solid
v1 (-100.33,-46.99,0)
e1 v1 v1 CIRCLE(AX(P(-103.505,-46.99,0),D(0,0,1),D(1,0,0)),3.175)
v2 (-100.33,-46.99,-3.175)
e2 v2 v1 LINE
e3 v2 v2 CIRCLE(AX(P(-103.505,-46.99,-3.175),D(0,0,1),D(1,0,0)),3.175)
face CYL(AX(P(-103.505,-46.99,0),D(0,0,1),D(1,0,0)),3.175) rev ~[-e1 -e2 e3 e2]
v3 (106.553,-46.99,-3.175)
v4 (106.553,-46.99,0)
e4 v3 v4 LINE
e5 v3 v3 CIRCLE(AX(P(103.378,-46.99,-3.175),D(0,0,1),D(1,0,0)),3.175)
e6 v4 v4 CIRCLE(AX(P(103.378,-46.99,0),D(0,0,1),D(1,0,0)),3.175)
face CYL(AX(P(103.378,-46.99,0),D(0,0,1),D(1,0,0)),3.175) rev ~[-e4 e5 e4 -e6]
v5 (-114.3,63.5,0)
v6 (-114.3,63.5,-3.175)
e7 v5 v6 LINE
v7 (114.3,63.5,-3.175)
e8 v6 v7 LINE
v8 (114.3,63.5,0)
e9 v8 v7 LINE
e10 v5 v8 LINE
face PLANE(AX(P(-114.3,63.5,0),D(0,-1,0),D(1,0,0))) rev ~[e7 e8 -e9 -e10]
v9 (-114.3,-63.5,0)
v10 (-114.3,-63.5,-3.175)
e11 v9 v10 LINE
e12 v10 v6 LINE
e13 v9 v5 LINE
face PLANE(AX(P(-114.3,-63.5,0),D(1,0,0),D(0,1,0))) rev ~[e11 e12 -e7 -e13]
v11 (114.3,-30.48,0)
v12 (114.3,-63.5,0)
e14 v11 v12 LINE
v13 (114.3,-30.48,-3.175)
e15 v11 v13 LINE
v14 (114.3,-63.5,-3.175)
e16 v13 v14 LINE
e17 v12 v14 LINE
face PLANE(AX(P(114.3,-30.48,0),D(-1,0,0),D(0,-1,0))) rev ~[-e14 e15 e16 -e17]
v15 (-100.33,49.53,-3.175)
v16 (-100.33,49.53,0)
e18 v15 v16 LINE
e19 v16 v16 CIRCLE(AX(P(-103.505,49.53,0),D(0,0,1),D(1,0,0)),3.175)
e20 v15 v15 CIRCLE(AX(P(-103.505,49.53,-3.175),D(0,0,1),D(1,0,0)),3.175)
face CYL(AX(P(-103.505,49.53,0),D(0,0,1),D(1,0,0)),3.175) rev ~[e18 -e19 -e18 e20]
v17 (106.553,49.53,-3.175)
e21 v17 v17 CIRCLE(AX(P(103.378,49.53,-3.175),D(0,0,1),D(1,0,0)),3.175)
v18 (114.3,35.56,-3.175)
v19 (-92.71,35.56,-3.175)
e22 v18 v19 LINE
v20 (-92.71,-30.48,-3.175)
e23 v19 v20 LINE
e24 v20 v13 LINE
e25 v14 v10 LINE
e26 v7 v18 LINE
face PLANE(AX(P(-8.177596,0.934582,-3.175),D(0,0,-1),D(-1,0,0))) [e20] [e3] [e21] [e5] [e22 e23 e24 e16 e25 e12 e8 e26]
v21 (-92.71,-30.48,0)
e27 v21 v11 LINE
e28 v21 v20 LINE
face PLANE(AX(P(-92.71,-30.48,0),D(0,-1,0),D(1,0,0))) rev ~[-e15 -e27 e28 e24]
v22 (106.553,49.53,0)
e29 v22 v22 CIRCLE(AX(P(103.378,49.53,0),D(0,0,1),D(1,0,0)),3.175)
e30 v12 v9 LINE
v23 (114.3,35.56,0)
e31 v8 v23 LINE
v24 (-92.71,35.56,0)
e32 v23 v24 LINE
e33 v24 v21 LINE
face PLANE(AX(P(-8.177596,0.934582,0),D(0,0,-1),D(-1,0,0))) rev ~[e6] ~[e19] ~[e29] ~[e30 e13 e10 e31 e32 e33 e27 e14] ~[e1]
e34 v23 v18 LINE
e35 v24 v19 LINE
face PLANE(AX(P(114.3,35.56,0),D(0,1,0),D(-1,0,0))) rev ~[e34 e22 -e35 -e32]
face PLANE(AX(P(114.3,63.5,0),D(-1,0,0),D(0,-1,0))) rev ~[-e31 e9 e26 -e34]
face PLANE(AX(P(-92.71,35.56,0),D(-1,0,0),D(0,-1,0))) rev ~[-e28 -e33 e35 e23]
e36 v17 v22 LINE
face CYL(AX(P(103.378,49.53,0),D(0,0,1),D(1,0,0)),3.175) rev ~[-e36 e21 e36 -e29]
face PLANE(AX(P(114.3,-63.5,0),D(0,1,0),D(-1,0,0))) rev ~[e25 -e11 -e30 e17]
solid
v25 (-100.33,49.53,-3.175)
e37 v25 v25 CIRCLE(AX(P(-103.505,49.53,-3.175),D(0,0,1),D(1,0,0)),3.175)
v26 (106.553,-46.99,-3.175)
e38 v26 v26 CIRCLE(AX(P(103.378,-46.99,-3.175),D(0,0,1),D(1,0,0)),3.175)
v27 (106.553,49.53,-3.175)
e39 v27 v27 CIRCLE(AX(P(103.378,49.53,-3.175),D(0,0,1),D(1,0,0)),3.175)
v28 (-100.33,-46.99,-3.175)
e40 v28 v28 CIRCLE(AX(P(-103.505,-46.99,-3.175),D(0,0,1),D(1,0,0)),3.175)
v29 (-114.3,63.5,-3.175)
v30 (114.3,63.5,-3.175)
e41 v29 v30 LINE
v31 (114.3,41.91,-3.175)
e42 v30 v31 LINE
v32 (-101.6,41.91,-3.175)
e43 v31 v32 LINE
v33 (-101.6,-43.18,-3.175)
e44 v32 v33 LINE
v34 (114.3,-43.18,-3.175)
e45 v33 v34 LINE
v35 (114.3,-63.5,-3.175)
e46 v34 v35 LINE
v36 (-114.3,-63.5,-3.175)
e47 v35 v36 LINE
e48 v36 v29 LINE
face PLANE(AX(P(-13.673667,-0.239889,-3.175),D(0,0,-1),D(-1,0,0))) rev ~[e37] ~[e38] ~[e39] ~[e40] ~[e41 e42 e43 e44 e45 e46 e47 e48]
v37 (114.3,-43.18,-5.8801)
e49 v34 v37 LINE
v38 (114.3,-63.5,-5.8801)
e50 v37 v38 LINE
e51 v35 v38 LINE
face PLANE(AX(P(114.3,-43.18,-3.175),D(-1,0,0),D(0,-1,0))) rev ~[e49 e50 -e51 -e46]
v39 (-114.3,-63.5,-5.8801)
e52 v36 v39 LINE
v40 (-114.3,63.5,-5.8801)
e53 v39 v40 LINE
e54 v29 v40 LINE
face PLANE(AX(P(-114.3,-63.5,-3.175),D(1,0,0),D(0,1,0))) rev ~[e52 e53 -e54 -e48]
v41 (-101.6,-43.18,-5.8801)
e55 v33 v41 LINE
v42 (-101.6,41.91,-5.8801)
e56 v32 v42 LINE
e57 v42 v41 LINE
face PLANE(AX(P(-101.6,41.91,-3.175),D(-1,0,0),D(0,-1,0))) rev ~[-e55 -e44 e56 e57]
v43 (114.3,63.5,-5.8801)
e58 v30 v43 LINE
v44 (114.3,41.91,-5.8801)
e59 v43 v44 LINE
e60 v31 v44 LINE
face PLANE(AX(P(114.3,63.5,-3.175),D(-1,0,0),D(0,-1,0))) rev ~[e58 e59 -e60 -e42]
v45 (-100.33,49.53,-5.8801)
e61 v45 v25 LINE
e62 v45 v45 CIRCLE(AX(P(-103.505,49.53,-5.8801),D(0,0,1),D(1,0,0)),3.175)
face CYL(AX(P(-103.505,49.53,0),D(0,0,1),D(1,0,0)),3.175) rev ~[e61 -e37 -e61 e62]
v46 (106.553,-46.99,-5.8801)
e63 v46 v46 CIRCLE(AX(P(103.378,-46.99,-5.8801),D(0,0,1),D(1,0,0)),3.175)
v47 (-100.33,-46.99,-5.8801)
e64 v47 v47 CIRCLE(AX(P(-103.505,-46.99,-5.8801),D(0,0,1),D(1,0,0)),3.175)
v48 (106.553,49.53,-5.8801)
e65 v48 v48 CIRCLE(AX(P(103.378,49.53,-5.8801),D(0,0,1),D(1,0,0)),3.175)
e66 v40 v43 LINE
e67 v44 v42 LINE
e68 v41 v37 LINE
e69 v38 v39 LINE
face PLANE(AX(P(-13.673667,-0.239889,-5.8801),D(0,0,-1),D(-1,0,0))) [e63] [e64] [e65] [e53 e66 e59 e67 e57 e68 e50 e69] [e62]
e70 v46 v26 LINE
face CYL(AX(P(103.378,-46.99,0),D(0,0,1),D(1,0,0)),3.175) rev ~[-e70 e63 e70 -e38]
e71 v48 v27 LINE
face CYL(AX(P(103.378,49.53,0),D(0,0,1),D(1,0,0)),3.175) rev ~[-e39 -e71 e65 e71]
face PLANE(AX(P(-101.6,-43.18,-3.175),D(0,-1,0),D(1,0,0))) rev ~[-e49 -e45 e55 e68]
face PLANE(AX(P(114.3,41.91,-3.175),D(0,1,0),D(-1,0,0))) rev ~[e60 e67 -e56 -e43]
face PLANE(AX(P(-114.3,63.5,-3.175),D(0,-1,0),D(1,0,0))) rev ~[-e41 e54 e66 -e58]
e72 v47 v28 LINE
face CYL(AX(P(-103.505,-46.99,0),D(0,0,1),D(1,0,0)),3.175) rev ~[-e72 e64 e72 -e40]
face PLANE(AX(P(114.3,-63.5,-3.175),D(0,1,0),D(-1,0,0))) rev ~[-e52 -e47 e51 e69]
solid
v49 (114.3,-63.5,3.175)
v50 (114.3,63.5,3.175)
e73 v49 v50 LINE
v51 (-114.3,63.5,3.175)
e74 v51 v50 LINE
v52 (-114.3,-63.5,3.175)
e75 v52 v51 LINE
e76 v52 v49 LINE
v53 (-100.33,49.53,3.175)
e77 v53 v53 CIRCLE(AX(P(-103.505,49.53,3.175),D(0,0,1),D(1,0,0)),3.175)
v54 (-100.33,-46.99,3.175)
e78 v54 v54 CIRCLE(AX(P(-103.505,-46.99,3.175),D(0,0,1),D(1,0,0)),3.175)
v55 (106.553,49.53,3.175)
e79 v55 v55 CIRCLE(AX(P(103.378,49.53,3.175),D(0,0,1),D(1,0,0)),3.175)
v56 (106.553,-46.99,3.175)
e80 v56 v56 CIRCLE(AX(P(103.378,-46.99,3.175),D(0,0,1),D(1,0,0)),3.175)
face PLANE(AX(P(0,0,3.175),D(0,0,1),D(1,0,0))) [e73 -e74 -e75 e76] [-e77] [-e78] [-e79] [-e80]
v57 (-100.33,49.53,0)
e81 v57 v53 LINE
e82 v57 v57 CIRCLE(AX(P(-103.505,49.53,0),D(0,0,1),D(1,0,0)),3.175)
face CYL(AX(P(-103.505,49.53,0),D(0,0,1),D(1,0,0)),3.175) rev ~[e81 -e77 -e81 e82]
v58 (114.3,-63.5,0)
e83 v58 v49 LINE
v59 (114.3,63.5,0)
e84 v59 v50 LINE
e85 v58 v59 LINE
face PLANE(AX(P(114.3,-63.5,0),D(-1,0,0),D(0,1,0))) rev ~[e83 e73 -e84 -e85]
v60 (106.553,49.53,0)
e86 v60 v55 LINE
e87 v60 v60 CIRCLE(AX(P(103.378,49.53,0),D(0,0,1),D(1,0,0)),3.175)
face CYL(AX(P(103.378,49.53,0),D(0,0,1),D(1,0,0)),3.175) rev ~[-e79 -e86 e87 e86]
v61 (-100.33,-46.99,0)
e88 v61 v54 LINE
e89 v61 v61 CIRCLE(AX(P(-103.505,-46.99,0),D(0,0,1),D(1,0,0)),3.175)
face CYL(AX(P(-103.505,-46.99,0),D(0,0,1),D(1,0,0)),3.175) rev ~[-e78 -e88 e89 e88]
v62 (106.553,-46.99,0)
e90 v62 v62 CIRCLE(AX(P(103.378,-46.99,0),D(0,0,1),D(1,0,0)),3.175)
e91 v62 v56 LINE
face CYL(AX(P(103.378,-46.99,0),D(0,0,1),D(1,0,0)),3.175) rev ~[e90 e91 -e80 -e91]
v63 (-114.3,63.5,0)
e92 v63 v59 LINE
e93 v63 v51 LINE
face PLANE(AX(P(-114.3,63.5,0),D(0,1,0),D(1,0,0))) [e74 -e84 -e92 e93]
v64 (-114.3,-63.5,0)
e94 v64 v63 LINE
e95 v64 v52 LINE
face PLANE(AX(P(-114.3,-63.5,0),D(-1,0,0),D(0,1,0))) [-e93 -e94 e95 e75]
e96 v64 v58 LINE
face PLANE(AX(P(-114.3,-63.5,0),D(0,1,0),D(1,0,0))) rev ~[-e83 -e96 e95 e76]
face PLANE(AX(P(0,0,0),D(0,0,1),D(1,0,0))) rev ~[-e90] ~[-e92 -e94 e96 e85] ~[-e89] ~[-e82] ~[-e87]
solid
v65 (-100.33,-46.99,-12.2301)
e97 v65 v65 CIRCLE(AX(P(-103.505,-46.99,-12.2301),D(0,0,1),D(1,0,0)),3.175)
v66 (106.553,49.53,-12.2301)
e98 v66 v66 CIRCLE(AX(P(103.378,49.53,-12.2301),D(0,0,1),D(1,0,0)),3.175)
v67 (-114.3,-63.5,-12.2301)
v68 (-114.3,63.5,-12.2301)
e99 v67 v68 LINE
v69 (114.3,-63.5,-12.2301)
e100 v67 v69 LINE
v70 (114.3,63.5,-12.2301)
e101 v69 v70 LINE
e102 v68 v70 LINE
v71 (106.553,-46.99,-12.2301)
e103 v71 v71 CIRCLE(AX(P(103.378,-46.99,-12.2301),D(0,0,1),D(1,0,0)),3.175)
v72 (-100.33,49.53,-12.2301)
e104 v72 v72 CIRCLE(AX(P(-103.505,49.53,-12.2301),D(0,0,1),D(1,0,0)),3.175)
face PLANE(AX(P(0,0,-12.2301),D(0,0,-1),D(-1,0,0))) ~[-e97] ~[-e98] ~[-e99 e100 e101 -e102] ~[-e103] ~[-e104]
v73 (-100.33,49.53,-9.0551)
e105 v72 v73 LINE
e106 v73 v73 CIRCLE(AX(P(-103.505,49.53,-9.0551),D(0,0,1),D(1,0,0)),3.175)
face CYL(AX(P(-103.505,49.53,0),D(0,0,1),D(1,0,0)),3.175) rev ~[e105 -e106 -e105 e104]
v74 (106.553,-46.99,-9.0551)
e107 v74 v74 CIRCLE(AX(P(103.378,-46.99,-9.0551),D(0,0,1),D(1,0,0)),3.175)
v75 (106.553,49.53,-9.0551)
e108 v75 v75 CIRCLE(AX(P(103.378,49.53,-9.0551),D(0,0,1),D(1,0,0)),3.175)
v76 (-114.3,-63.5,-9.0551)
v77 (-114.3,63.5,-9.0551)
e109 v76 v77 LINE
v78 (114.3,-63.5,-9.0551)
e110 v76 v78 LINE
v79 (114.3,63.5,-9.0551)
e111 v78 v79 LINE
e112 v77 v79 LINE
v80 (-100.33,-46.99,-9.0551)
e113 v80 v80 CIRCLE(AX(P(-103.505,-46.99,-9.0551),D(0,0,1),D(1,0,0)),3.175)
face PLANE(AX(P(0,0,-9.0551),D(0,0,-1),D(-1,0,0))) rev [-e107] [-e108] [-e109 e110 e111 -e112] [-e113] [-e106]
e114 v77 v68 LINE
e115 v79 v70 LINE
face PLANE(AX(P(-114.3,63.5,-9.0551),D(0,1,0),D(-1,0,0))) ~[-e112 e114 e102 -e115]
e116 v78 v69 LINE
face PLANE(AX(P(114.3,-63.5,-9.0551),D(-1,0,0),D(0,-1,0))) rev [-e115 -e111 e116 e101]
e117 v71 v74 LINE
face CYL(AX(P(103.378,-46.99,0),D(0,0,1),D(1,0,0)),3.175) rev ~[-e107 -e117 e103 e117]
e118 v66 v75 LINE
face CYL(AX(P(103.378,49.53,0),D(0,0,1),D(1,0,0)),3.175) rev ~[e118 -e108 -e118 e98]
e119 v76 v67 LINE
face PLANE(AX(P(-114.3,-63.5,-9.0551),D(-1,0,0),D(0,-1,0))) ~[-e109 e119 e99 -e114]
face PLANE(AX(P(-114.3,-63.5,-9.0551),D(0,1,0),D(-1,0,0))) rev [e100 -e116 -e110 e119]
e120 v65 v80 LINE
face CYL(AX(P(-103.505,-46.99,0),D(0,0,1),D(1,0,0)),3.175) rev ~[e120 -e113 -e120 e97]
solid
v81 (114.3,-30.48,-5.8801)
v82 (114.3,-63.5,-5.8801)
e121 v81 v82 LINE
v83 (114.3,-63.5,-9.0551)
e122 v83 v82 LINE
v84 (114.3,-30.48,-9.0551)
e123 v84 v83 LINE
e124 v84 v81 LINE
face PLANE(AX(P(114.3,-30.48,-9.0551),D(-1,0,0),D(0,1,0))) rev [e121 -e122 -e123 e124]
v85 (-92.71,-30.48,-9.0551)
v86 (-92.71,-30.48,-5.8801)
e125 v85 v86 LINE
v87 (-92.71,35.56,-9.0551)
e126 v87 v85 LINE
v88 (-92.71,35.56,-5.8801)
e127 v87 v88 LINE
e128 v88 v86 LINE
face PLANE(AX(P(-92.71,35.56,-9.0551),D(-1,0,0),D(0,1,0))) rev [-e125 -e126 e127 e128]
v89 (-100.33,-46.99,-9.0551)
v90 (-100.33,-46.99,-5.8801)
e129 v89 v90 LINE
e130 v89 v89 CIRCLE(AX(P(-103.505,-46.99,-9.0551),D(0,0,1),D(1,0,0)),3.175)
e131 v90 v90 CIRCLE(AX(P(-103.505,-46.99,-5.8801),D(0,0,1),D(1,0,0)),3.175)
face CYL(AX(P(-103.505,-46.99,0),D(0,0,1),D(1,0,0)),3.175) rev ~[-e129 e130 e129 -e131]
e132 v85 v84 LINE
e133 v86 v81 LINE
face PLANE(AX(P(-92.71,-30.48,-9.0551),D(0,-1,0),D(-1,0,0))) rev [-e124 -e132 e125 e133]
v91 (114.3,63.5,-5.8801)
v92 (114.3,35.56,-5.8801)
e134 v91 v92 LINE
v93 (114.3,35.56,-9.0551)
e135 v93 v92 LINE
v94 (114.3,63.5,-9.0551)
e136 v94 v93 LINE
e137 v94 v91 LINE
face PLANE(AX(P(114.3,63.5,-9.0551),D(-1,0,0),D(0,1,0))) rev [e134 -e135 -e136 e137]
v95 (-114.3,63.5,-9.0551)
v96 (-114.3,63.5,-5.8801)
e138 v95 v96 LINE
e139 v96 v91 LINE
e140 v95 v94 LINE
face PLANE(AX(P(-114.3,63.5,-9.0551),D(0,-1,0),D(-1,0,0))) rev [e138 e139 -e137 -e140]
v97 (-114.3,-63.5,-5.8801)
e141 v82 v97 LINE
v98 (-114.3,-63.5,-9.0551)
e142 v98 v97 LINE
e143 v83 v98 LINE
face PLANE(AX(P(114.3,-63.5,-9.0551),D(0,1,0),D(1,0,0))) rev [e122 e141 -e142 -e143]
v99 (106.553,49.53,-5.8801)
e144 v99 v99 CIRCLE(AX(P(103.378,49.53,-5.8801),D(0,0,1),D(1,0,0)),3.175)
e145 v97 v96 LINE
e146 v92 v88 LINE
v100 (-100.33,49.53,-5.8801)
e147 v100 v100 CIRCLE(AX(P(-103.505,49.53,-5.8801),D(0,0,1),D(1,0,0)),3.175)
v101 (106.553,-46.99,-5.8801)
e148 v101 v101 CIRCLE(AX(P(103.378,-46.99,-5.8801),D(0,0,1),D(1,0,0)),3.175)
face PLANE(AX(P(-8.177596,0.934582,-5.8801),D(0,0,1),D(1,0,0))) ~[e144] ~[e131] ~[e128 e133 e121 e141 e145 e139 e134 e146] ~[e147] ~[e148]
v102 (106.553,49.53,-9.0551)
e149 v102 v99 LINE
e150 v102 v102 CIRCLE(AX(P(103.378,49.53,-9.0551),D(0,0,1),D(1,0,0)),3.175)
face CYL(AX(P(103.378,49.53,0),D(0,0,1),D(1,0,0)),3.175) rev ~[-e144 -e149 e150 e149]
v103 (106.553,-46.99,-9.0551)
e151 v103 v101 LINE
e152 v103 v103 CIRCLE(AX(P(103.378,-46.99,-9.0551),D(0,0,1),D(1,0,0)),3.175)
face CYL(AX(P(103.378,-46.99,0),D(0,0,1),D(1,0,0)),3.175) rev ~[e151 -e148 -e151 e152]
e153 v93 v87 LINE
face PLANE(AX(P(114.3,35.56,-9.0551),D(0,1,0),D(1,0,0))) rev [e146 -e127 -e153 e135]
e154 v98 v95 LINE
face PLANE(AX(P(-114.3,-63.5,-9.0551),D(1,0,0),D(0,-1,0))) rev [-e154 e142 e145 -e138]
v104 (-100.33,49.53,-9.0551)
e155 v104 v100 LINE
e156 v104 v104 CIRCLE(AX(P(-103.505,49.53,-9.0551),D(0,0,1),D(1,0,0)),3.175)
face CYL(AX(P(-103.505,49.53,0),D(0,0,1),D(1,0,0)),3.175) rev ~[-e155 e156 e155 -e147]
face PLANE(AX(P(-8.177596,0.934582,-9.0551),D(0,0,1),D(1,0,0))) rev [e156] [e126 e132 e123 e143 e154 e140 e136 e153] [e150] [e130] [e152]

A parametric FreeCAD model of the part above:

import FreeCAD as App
import Part
import Sketcher

V = App.Vector
Q = App.Units.Quantity


def add_polygon(sketch, points):
    """Adds a closed chain of lines whose ends are joined by coincident constraints."""
    first, n = sketch.GeometryCount, len(points)
    for a, b in zip(points, points[1:] + points[:1]):
        sketch.addGeometry(Part.LineSegment(App.Vector(*a, 0), App.Vector(*b, 0)), False)
    for i in range(n):
        sketch.addConstraint(Sketcher.Constraint("Coincident", first + i, 2, first + (i + 1) % n, 1))

doc = App.newDocument("Part")
params = doc.addObject("Spreadsheet::Sheet", "Params")
for row, (alias, value) in enumerate([
    ("sketch1_width", "9 in"),
    ("sketch1_height", "5 in"),
    ("pad1_length", "0.125 in"),
    ("sketch2_width", "9 in"),
    ("sketch2_height", "5 in"),
    ("sketch2_height2", "1.1 in"),
    ("sketch2_height3", "2.6 in"),
    ("sketch2_width2", "8.15 in"),
    ("pad2_length", "0.125 in"),
    ("sketch3_width", "9 in"),
    ("sketch3_height", "5 in"),
    ("sketch3_width2", "8.5 in"),
    ("sketch3_height2", "0.8 in"),
    ("sketch3_height3", "3.35 in"),
    ("pad3_length", "0.1065 in"),
    ("sketch4_diameter", "0.25 in"),
    ("pad4_length", "4.175 mm"),
    ("pad4_length2", "13.2301 mm"),
], start=1):
    params.set(f"A{row}", alias)
    params.set(f"B{row}", "=" + value)
    params.setAlias(f"B{row}", alias)

body = doc.addObject("PartDesign::Body", "Body")

# Sketch on XY plane
sketch1 = body.newObject("Sketcher::SketchObject", "Sketch")
sketch1.AttachmentSupport = (doc.getObject("XY_Plane"), [""])
sketch1.MapMode = "FlatFace"
add_polygon(sketch1, [(-114.3, 63.5), (-114.3, -63.5), (114.3, -63.5), (114.3, 63.5)])  # lines 0-3
sketch1.addConstraint(Sketcher.Constraint("Vertical", 0))
sketch1.addConstraint(Sketcher.Constraint("Horizontal", 1))
sketch1.addConstraint(Sketcher.Constraint("Vertical", 2))
sketch1.addConstraint(Sketcher.Constraint("Horizontal", 3))
sketch1.addConstraint(Sketcher.Constraint("Symmetric", 0, 2, 2, 2, -1, 1))
sketch1.addConstraint(Sketcher.Constraint("DistanceX", 1, 1, 1, 2, Q("9 in")))
sketch1.addConstraint(Sketcher.Constraint("DistanceY", 0, 2, 0, 1, Q("5 in")))
sketch1.setExpression("Constraints[9]", "Params.sketch1_width")
sketch1.setExpression("Constraints[10]", "Params.sketch1_height")
pad1 = body.newObject("PartDesign::Pad", "Pad")
pad1.Profile = sketch1
pad1.setExpression("Length", "Params.pad1_length")
body2 = doc.addObject("PartDesign::Body", "Body001")

# Sketch on XY plane
sketch2 = body2.newObject("Sketcher::SketchObject", "Sketch001")
sketch2.AttachmentSupport = (doc.getObject("XY_Plane001"), [""])
sketch2.MapMode = "FlatFace"
add_polygon(sketch2, [(114.3, 63.5), (114.3, 35.56), (-92.71, 35.56), (-92.71, -30.48), (114.3, -30.48), (114.3, -63.5), (-114.3, -63.5), (-114.3, 63.5)])  # lines 0-7
sketch2.addConstraint(Sketcher.Constraint("Vertical", 0))
sketch2.addConstraint(Sketcher.Constraint("Horizontal", 1))
sketch2.addConstraint(Sketcher.Constraint("Vertical", 2))
sketch2.addConstraint(Sketcher.Constraint("Horizontal", 3))
sketch2.addConstraint(Sketcher.Constraint("Vertical", 4))
sketch2.addConstraint(Sketcher.Constraint("Horizontal", 5))
sketch2.addConstraint(Sketcher.Constraint("Vertical", 6))
sketch2.addConstraint(Sketcher.Constraint("Horizontal", 7))
sketch2.addConstraint(Sketcher.Constraint("Symmetric", 4, 2, 6, 2, -1, 1))
sketch2.addConstraint(Sketcher.Constraint("Vertical", 0, 2, 3, 2))
sketch2.addConstraint(Sketcher.Constraint("DistanceX", 5, 2, 5, 1, Q("9 in")))
sketch2.addConstraint(Sketcher.Constraint("DistanceY", 6, 1, 6, 2, Q("5 in")))
sketch2.addConstraint(Sketcher.Constraint("DistanceY", 0, 2, 0, 1, Q("1.1 in")))
sketch2.addConstraint(Sketcher.Constraint("DistanceY", 2, 2, 2, 1, Q("2.6 in")))
sketch2.addConstraint(Sketcher.Constraint("DistanceX", 1, 2, 1, 1, Q("8.15 in")))
sketch2.setExpression("Constraints[18]", "Params.sketch2_width")
sketch2.setExpression("Constraints[19]", "Params.sketch2_height")
sketch2.setExpression("Constraints[20]", "Params.sketch2_height2")
sketch2.setExpression("Constraints[21]", "Params.sketch2_height3")
sketch2.setExpression("Constraints[22]", "Params.sketch2_width2")
pad2 = body2.newObject("PartDesign::Pad", "Pad001")
pad2.Profile = sketch2
pad2.setExpression("Length", "Params.pad2_length")
pad2.Reversed = True
body3 = doc.addObject("PartDesign::Body", "Body002")

# Sketch on XY plane
sketch3 = body3.newObject("Sketcher::SketchObject", "Sketch002")
sketch3.AttachmentSupport = (doc.getObject("XY_Plane002"), [""])
sketch3.MapMode = "FlatFace"
sketch3.AttachmentOffset = App.Placement(V(0, 0, -0.125 * 25.4), App.Rotation())
add_polygon(sketch3, [(114.3, 41.91), (-101.6, 41.91), (-101.6, -43.18), (114.3, -43.18), (114.3, -63.5), (-114.3, -63.5), (-114.3, 63.5), (114.3, 63.5)])  # lines 0-7
sketch3.addConstraint(Sketcher.Constraint("Horizontal", 0))
sketch3.addConstraint(Sketcher.Constraint("Vertical", 1))
sketch3.addConstraint(Sketcher.Constraint("Horizontal", 2))
sketch3.addConstraint(Sketcher.Constraint("Vertical", 3))
sketch3.addConstraint(Sketcher.Constraint("Horizontal", 4))
sketch3.addConstraint(Sketcher.Constraint("Vertical", 5))
sketch3.addConstraint(Sketcher.Constraint("Horizontal", 6))
sketch3.addConstraint(Sketcher.Constraint("Vertical", 7))
sketch3.addConstraint(Sketcher.Constraint("Symmetric", 3, 2, 5, 2, -1, 1))
sketch3.addConstraint(Sketcher.Constraint("Vertical", 3, 2, 6, 2))
sketch3.addConstraint(Sketcher.Constraint("DistanceX", 4, 2, 4, 1, Q("9 in")))
sketch3.addConstraint(Sketcher.Constraint("DistanceY", 5, 1, 5, 2, Q("5 in")))
sketch3.addConstraint(Sketcher.Constraint("DistanceX", 0, 2, 0, 1, Q("8.5 in")))
sketch3.addConstraint(Sketcher.Constraint("DistanceY", 3, 2, 3, 1, Q("0.8 in")))
sketch3.addConstraint(Sketcher.Constraint("DistanceY", 1, 2, 1, 1, Q("3.35 in")))
sketch3.setExpression("Constraints[18]", "Params.sketch3_width")
sketch3.setExpression("Constraints[19]", "Params.sketch3_height")
sketch3.setExpression("Constraints[20]", "Params.sketch3_width2")
sketch3.setExpression("Constraints[21]", "Params.sketch3_height2")
sketch3.setExpression("Constraints[22]", "Params.sketch3_height3")
pad3 = body3.newObject("PartDesign::Pad", "Pad002")
pad3.Profile = sketch3
pad3.setExpression("Length", "Params.pad3_length")
pad3.Reversed = True
body4 = doc.addObject("PartDesign::Body", "Body003")
doc.recompute()

mirroring = doc.addObject("Part::Mirroring", "Mirroring")
mirroring.Source = body
mirroring.Base = V(0, 0, -4.52755)
mirroring.Normal = V(0, 0, -1)
body4.BaseFeature = mirroring
doc.recompute()
body5 = doc.addObject("PartDesign::Body", "Body004")
doc.recompute()

mirroring2 = doc.addObject("Part::Mirroring", "Mirroring001")
mirroring2.Source = body2
mirroring2.Base = V(0, 0, -4.52755)
mirroring2.Normal = V(0, 0, -1)
body5.BaseFeature = mirroring2
doc.recompute()
body6 = doc.addObject("PartDesign::Body", "Body005")
body6.AllowCompound = True

# Sketch on XY plane
sketch4 = body6.newObject("Sketcher::SketchObject", "Sketch003")
sketch4.AttachmentSupport = (doc.getObject("XY_Plane005"), [""])
sketch4.MapMode = "FlatFace"
sketch4.addGeometry(Part.Circle(V(-103.505, 49.53, 0), V(0, 0, 1), 3.175), False)
sketch4.addGeometry(Part.Circle(V(-103.505, -46.99, 0), V(0, 0, 1), 3.175), False)
sketch4.addGeometry(Part.Circle(V(103.378, 49.53, 0), V(0, 0, 1), 3.175), False)
sketch4.addGeometry(Part.Circle(V(103.378, -46.99, 0), V(0, 0, 1), 3.175), False)
sketch4.addConstraint(Sketcher.Constraint("Equal", 0, 1))
sketch4.addConstraint(Sketcher.Constraint("Equal", 1, 2))
sketch4.addConstraint(Sketcher.Constraint("Equal", 2, 3))
sketch4.addConstraint(Sketcher.Constraint("Horizontal", 0, 3, 2, 3))
sketch4.addConstraint(Sketcher.Constraint("Horizontal", 1, 3, 3, 3))
sketch4.addConstraint(Sketcher.Constraint("Vertical", 0, 3, 1, 3))
sketch4.addConstraint(Sketcher.Constraint("Vertical", 2, 3, 3, 3))
sketch4.addConstraint(Sketcher.Constraint("Diameter", 0, Q("0.25 in")))
sketch4.addConstraint(Sketcher.Constraint("DistanceY", 1, 3, 0, 3, Q("3.8 in")))
sketch4.addConstraint(Sketcher.Constraint("DistanceY", -1, 1, 0, 3, Q("1.95 in")))
sketch4.addConstraint(Sketcher.Constraint("DistanceX", -1, 1, 2, 3, Q("4.07 in")))
sketch4.addConstraint(Sketcher.Constraint("DistanceX", 0, 3, -1, 1, Q("4.075 in")))
sketch4.setExpression("Constraints[7]", "Params.sketch4_diameter")
pad4 = body6.newObject("PartDesign::Pad", "Pad003")
pad4.Profile = sketch4
pad4.Type = "TwoLengths"
pad4.setExpression("Length", "Params.pad4_length")
pad4.setExpression("Length2", "Params.pad4_length2")
doc.recompute()

body7 = doc.addObject("PartDesign::Body", "Body006")
body7.BaseFeature = body6
boolean = body.newObject("PartDesign::Boolean", "Boolean")
boolean.Type = "Cut"
boolean.addObjects([body7])
doc.recompute()

body8 = doc.addObject("PartDesign::Body", "Body007")
body8.BaseFeature = body6
boolean2 = body2.newObject("PartDesign::Boolean", "Boolean001")
boolean2.Type = "Cut"
boolean2.addObjects([body8])
doc.recompute()

body9 = doc.addObject("PartDesign::Body", "Body008")
body9.BaseFeature = body6
boolean3 = body3.newObject("PartDesign::Boolean", "Boolean002")
boolean3.Type = "Cut"
boolean3.addObjects([body9])
doc.recompute()

body10 = doc.addObject("PartDesign::Body", "Body009")
body10.BaseFeature = body6
boolean4 = body4.newObject("PartDesign::Boolean", "Boolean003")
boolean4.Type = "Cut"
boolean4.addObjects([body10])
doc.recompute()

boolean5 = body5.newObject("PartDesign::Boolean", "Boolean004")
boolean5.Type = "Cut"
boolean5.addObjects([body6])
mirroring.Visibility = False
mirroring2.Visibility = False

doc.recompute()
